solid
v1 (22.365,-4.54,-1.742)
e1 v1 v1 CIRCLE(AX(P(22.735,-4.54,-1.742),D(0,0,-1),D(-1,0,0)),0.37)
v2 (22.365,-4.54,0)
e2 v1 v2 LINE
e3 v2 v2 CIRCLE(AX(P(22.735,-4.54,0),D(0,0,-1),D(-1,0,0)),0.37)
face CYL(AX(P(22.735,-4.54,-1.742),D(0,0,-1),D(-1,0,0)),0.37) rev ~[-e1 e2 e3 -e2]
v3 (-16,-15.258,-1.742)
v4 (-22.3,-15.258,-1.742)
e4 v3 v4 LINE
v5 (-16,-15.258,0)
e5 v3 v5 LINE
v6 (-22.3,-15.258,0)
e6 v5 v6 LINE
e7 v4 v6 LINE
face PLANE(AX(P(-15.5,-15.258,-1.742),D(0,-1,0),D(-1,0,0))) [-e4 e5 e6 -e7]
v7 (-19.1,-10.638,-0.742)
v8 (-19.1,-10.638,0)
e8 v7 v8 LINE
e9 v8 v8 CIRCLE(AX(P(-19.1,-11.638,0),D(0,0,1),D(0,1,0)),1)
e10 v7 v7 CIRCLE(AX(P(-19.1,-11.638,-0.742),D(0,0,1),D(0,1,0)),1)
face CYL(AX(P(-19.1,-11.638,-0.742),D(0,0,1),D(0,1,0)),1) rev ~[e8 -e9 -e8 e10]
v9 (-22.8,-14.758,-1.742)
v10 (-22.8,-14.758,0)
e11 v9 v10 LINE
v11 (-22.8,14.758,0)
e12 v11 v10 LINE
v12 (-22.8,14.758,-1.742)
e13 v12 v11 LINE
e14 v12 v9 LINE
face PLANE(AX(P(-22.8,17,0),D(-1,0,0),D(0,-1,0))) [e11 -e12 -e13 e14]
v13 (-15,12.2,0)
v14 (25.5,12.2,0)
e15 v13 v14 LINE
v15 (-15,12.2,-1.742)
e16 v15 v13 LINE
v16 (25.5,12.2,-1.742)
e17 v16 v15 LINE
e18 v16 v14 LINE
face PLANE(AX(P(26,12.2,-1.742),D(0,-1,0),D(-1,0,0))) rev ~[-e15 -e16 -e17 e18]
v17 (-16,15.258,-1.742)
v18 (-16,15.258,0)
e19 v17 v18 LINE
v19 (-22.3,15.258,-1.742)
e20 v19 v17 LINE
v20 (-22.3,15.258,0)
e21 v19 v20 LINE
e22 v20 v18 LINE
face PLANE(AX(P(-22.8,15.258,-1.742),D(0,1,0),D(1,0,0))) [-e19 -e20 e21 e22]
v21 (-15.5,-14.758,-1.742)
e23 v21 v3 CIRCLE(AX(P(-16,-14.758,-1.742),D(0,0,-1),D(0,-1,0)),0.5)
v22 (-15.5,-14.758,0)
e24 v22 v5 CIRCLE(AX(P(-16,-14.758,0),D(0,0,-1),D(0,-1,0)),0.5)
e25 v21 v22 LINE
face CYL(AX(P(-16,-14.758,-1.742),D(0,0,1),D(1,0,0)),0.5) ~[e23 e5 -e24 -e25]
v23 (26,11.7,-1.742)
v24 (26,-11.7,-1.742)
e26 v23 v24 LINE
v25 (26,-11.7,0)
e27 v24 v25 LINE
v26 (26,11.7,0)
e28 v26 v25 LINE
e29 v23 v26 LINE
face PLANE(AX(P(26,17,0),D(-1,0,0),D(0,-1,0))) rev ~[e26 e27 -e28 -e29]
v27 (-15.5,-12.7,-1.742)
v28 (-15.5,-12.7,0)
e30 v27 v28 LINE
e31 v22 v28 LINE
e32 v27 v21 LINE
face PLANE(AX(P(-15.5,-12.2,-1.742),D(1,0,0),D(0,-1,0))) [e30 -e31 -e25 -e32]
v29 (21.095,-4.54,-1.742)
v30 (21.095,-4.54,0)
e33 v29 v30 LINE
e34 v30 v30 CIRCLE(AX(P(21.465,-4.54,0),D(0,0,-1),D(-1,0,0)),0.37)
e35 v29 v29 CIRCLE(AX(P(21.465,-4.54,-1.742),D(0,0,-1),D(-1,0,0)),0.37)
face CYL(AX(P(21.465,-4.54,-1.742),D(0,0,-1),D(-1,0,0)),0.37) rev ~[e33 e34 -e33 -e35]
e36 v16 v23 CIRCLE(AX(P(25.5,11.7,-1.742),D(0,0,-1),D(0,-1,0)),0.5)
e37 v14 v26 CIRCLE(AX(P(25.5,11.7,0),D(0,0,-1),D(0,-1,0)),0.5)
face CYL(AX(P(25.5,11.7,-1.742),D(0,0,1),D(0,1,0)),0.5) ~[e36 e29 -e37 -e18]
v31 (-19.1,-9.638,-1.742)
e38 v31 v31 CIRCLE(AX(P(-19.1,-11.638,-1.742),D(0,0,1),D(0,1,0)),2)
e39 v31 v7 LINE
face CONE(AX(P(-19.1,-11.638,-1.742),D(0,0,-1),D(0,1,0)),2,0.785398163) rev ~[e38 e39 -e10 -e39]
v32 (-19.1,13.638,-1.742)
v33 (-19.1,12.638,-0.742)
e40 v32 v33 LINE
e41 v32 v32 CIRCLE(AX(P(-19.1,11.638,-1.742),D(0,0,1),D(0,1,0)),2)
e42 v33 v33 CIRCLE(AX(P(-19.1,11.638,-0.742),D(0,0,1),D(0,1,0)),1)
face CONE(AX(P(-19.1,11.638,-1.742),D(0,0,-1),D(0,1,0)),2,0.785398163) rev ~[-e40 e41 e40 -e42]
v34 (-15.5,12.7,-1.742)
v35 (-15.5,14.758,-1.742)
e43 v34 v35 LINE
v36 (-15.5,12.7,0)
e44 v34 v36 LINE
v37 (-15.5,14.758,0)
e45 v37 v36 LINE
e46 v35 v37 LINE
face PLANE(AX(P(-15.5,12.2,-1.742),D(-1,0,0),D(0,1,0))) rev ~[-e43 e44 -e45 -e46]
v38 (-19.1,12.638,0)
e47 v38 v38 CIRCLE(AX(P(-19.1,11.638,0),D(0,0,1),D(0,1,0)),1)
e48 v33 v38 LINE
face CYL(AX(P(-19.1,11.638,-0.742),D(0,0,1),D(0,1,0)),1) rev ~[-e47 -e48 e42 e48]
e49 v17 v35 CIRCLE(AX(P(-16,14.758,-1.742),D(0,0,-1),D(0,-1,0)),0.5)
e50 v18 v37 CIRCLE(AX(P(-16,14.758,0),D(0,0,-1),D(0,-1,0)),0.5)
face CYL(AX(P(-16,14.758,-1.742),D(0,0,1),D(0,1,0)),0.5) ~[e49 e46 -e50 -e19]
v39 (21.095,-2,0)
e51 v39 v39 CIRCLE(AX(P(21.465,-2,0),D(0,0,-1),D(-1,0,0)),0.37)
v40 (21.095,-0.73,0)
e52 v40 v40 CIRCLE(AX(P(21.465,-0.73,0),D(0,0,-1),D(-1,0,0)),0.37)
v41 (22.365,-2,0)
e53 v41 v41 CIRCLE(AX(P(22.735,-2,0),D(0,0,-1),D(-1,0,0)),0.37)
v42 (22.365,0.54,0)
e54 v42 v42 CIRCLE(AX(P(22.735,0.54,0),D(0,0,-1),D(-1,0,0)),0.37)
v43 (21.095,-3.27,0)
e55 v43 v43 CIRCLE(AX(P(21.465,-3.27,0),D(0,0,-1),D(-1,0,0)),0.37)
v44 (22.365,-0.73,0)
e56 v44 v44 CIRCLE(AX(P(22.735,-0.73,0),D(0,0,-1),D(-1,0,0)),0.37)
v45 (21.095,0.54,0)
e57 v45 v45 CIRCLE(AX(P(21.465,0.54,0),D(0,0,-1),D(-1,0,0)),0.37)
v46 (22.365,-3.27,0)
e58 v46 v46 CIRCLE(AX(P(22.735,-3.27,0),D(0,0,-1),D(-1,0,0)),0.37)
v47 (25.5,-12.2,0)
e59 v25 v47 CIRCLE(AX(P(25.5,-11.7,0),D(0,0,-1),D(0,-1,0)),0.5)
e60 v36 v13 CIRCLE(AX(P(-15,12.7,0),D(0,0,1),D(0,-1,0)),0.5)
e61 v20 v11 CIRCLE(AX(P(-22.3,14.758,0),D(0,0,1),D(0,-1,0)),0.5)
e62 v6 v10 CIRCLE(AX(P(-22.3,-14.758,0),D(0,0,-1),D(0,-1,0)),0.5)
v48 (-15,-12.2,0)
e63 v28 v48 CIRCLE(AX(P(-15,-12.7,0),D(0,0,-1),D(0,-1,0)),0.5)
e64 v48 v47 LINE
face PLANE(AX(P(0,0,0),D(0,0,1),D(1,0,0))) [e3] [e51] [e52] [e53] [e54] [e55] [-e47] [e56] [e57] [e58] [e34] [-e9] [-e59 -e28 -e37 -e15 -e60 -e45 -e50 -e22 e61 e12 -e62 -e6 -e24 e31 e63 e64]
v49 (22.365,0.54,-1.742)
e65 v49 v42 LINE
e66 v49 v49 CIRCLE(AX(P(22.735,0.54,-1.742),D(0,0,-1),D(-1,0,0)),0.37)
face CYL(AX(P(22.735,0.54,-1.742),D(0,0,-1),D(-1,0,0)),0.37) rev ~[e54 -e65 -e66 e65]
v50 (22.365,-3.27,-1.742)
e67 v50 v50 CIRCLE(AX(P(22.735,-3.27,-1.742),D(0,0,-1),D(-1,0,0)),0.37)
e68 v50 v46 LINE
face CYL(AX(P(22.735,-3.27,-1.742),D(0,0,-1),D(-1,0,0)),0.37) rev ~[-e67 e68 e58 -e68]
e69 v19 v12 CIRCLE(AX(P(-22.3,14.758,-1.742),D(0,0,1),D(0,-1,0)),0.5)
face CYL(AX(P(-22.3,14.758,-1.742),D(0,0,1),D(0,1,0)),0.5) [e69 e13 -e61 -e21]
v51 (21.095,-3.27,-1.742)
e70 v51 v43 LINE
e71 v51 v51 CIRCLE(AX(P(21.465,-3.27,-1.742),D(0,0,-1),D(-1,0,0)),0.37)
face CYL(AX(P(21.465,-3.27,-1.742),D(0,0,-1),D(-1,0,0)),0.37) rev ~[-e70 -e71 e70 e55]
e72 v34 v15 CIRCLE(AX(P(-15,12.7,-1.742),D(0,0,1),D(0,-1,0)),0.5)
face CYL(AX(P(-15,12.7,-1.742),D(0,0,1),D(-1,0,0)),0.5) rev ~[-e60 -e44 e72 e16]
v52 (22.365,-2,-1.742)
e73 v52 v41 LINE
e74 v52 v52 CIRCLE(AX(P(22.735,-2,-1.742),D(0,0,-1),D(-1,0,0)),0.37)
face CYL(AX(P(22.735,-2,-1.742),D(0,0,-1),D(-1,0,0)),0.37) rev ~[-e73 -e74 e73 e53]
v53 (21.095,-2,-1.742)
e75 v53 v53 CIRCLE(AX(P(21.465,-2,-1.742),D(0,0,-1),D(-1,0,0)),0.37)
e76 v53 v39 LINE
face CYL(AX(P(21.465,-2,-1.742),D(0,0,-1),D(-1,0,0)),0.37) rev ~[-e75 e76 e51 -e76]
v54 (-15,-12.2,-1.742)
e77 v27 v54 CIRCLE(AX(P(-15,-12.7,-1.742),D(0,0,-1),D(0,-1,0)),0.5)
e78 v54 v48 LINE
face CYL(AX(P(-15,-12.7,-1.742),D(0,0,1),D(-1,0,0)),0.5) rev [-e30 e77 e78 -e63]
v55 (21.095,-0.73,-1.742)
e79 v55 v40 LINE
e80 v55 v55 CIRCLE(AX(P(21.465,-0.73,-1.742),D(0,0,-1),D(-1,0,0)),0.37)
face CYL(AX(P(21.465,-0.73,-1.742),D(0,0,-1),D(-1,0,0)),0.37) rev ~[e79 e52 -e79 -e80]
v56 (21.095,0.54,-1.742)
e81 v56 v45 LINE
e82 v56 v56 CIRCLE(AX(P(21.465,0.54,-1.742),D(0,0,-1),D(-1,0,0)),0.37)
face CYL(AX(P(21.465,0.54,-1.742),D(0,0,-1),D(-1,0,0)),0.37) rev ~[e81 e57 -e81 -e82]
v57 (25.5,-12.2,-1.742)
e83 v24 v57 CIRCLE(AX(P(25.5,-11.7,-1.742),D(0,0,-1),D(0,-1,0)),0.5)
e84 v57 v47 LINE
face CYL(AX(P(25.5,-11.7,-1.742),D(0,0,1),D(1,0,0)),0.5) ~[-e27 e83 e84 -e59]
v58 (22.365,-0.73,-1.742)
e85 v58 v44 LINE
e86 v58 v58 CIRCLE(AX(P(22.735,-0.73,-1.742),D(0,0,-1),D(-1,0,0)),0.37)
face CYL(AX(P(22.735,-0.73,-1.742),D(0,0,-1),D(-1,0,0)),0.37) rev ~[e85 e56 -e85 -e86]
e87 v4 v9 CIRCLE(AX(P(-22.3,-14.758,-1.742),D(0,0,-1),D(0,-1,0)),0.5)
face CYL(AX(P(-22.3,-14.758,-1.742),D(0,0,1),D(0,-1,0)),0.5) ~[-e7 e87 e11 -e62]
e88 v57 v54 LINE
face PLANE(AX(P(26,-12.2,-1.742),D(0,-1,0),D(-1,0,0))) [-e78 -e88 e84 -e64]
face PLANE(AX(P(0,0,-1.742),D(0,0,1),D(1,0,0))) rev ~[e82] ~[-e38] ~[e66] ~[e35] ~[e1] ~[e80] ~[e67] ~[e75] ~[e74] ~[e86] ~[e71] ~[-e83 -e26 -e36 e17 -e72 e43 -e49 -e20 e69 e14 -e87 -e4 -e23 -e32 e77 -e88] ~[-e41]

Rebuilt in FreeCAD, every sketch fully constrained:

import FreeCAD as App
import Part
import Sketcher

V = App.Vector
Q = App.Units.Quantity


def edges_at(feature, points):
    """Names of the edges that pass closest to the given points."""
    edges = feature.Shape.Edges
    near = lambda p: min(range(len(edges)), key=lambda i: edges[i].distToShape(Part.Vertex(*p))[0])
    return sorted({f"Edge{near(p) + 1}" for p in points})

doc = App.newDocument("Part")
body = doc.addObject("PartDesign::Body", "Body")

# Sketch on XY plane
sketch1 = doc.addObject("Sketcher::SketchObject", "Sketch")
body.addObject(sketch1)
sketch1.AttachmentSupport = (doc.XY_Plane, [""])
sketch1.MapMode = "FlatFace"
sketch1.addGeometry([
    Part.LineSegment(V(26, 17, 0), V(-26, 17, 0)),
    Part.LineSegment(V(-26, 17, 0), V(-26, -17, 0)),
    Part.LineSegment(V(-26, -17, 0), V(26, -17, 0)),
    Part.LineSegment(V(26, -17, 0), V(26, 17, 0)),
], False)
sketch1.addConstraint([
    Sketcher.Constraint("Coincident", 0, 2, 1, 1),
    Sketcher.Constraint("Coincident", 1, 2, 2, 1),
    Sketcher.Constraint("Coincident", 2, 2, 3, 1),
    Sketcher.Constraint("Coincident", 3, 2, 0, 1),
    Sketcher.Constraint("Horizontal", 0),
    Sketcher.Constraint("Vertical", 1),
    Sketcher.Constraint("Horizontal", 2),
    Sketcher.Constraint("Vertical", 3),
    Sketcher.Constraint("Symmetric", 0, 2, 2, 2, -1, 1),
    Sketcher.Constraint("DistanceX", 0, 2, 0, 1, Q("52 mm")),
    Sketcher.Constraint("DistanceY", 1, 2, 1, 1, Q("34 mm")),
])
pad1 = doc.addObject("PartDesign::Pad", "Pad")
body.addObject(pad1)
pad1.Profile = sketch1
pad1.Length = 1.742
pad1.Reversed = True
doc.recompute()

fillet = doc.addObject("PartDesign::Fillet", "Fillet")
body.addObject(fillet)
fillet.Base = (pad1, edges_at(pad1, [
    (26, 17, -0.871),
    (-26, 17, -0.871),
    (-26, -17, -0.871),
    (26, -17, -0.871),
]))
fillet.Radius = 0.5

# Sketch on XY plane
sketch2 = doc.addObject("Sketcher::SketchObject", "Sketch001")
body.addObject(sketch2)
sketch2.AttachmentSupport = (doc.XY_Plane, [""])
sketch2.MapMode = "FlatFace"
sketch2.AttachmentOffset = App.Placement(V(0, 0, -1.742), App.Rotation())
sketch2.addGeometry([
    Part.LineSegment(V(-15.5, -12.2, 0), V(26, -12.2, 0)),  # 0
    Part.LineSegment(V(26, -12.2, 0), V(26, -17, 0)),  # 1
    Part.LineSegment(V(26, -17, 0), V(-15.5, -17, 0)),  # 2
    Part.LineSegment(V(-15.5, -17, 0), V(-15.5, -12.2, 0)),  # 3
    Part.LineSegment(V(-15.5, 17, 0), V(26, 17, 0)),  # 4
    Part.LineSegment(V(26, 17, 0), V(26, 12.2, 0)),  # 5
    Part.LineSegment(V(26, 12.2, 0), V(-15.5, 12.2, 0)),  # 6
    Part.LineSegment(V(-15.5, 12.2, 0), V(-15.5, 17, 0)),  # 7
], False)
sketch2.addConstraint([
    Sketcher.Constraint("Coincident", 0, 2, 1, 1),
    Sketcher.Constraint("Coincident", 1, 2, 2, 1),
    Sketcher.Constraint("Coincident", 2, 2, 3, 1),
    Sketcher.Constraint("Coincident", 3, 2, 0, 1),
    Sketcher.Constraint("Coincident", 4, 2, 5, 1),
    Sketcher.Constraint("Coincident", 5, 2, 6, 1),
    Sketcher.Constraint("Coincident", 6, 2, 7, 1),
    Sketcher.Constraint("Coincident", 7, 2, 4, 1),
    Sketcher.Constraint("Horizontal", 0),
    Sketcher.Constraint("Vertical", 1),
    Sketcher.Constraint("Horizontal", 2),
    Sketcher.Constraint("Vertical", 3),
    Sketcher.Constraint("Horizontal", 4),
    Sketcher.Constraint("Vertical", 5),
    Sketcher.Constraint("Horizontal", 6),
    Sketcher.Constraint("Vertical", 7),
    Sketcher.Constraint("Symmetric", 1, 2, 4, 2, -1),
    Sketcher.Constraint("Symmetric", 3, 2, 6, 2, -1),
    Sketcher.Constraint("DistanceX", 0, 1, 0, 2, Q("41.5 mm")),
    Sketcher.Constraint("DistanceY", 1, 2, 1, 1, Q("4.8 mm")),
    Sketcher.Constraint("DistanceX", -1, 1, 0, 2, Q("26 mm")),
    Sketcher.Constraint("DistanceY", 1, 2, -1, 1, Q("17 mm")),
])
pocket1 = doc.addObject("PartDesign::Pocket", "Pocket")
body.addObject(pocket1)
pocket1.Profile = sketch2
pocket1.Type = "ThroughAll"
pocket1.Reversed = True

# Sketch on XY plane
sketch3 = doc.addObject("Sketcher::SketchObject", "Sketch002")
body.addObject(sketch3)
sketch3.AttachmentSupport = (doc.XY_Plane, [""])
sketch3.MapMode = "FlatFace"
sketch3.addGeometry([
    Part.LineSegment(V(-22.8, 17, 0), V(-26, 17, 0)),
    Part.LineSegment(V(-26, 17, 0), V(-26, -17, 0)),
    Part.LineSegment(V(-26, -17, 0), V(-22.8, -17, 0)),
    Part.LineSegment(V(-22.8, -17, 0), V(-22.8, 17, 0)),
], False)
sketch3.addConstraint([
    Sketcher.Constraint("Coincident", 0, 2, 1, 1),
    Sketcher.Constraint("Coincident", 1, 2, 2, 1),
    Sketcher.Constraint("Coincident", 2, 2, 3, 1),
    Sketcher.Constraint("Coincident", 3, 2, 0, 1),
    Sketcher.Constraint("Horizontal", 0),
    Sketcher.Constraint("Vertical", 1),
    Sketcher.Constraint("Horizontal", 2),
    Sketcher.Constraint("Vertical", 3),
    Sketcher.Constraint("DistanceX", 0, 2, 0, 1, Q("3.2 mm")),
    Sketcher.Constraint("DistanceY", 1, 2, 1, 1, Q("34 mm")),
    Sketcher.Constraint("DistanceX", 0, 2, -1, 1, Q("26 mm")),
    Sketcher.Constraint("DistanceY", -1, 1, 0, 2, Q("17 mm")),
])
pocket2 = doc.addObject("PartDesign::Pocket", "Pocket001")
body.addObject(pocket2)
pocket2.Profile = sketch3
pocket2.Length = 1.742

# Sketch on XY plane
sketch4 = doc.addObject("Sketcher::SketchObject", "Sketch003")
body.addObject(sketch4)
sketch4.AttachmentSupport = (doc.XY_Plane, [""])
sketch4.MapMode = "FlatFace"
sketch4.AttachmentOffset = App.Placement(V(0, 0, -1.742), App.Rotation())
sketch4.addGeometry([
    Part.Circle(V(-19.1, 11.6, 0), V(0, 0, 1), 1),
    Part.Circle(V(-19.1, -11.6, 0), V(0, 0, 1), 1),
], False)
sketch4.addConstraint([
    Sketcher.Constraint("Equal", 0, 1),
    Sketcher.Constraint("Symmetric", 0, 3, 1, 3, -1),
    Sketcher.Constraint("Diameter", 0, Q("2 mm")),
    Sketcher.Constraint("DistanceX", 0, 3, -1, 1, Q("19.1 mm")),
    Sketcher.Constraint("DistanceY", -1, 1, 0, 3, Q("11.638 mm")),
])
doc.recompute()
hole = doc.addObject("PartDesign::Hole", "Hole")
body.addObject(hole)
hole.Profile = sketch4
hole.ThreadType = "None"
hole.Diameter = 2
hole.DepthType = "ThroughAll"
hole.HoleCutType = "Countersink"
hole.HoleCutDiameter = 4
hole.HoleCutCountersinkAngle = 90
hole.Reversed = True
doc.recompute()

fillet2 = doc.addObject("PartDesign::Fillet", "Fillet001")
body.addObject(fillet2)
fillet2.Base = (hole, edges_at(hole, [
    (-15.5, 17, -0.871),
    (-22.8, 17, -0.871),
    (-15.5, 12.2, -0.871),
    (26, 12.2, -0.871),
    (26, -12.2, -0.871),
    (-15.5, -12.2, -0.871),
    (-15.5, -17, -0.871),
    (-22.8, -17, -0.871),
]))
fillet2.Radius = 0.5

# Sketch on XY plane
sketch5 = doc.addObject("Sketcher::SketchObject", "Sketch004")
body.addObject(sketch5)
sketch5.AttachmentSupport = (doc.XY_Plane, [""])
sketch5.MapMode = "FlatFace"
sketch5.AttachmentOffset = App.Placement(V(0, 0, -1.742), App.Rotation())
sketch5.addGeometry([
    Part.Circle(V(22.73, 0.54, 0), V(0, 0, 1), 0.37),  # 0
    Part.Circle(V(21.46, 0.54, 0), V(0, 0, 1), 0.37),  # 1
    Part.Circle(V(22.73, -0.73, 0), V(0, 0, 1), 0.37),  # 2
    Part.Circle(V(21.46, -0.73, 0), V(0, 0, 1), 0.37),  # 3
    Part.Circle(V(22.73, -2, 0), V(0, 0, 1), 0.37),  # 4
    Part.Circle(V(21.46, -2, 0), V(0, 0, 1), 0.37),  # 5
    Part.Circle(V(22.73, -3.27, 0), V(0, 0, 1), 0.37),  # 6
    Part.Circle(V(21.46, -3.27, 0), V(0, 0, 1), 0.37),  # 7
    Part.Circle(V(22.73, -4.54, 0), V(0, 0, 1), 0.37),  # 8
    Part.Circle(V(21.46, -4.54, 0), V(0, 0, 1), 0.37),  # 9
], False)
sketch5.addConstraint([
    Sketcher.Constraint("Equal", 0, 1),
    Sketcher.Constraint("Equal", 1, 2),
    Sketcher.Constraint("Equal", 2, 3),
    Sketcher.Constraint("Equal", 3, 4),
    Sketcher.Constraint("Equal", 4, 5),
    Sketcher.Constraint("Equal", 5, 6),
    Sketcher.Constraint("Equal", 6, 7),
    Sketcher.Constraint("Equal", 7, 8),
    Sketcher.Constraint("Equal", 8, 9),
    Sketcher.Constraint("Horizontal", 0, 3, 1, 3),
    Sketcher.Constraint("Horizontal", 2, 3, 3, 3),
    Sketcher.Constraint("Horizontal", 4, 3, 5, 3),
    Sketcher.Constraint("Horizontal", 6, 3, 7, 3),
    Sketcher.Constraint("Horizontal", 8, 3, 9, 3),
    Sketcher.Constraint("Vertical", 0, 3, 2, 3),
    Sketcher.Constraint("Vertical", 1, 3, 3, 3),
    Sketcher.Constraint("Vertical", 2, 3, 4, 3),
    Sketcher.Constraint("Vertical", 3, 3, 5, 3),
    Sketcher.Constraint("Vertical", 4, 3, 6, 3),
    Sketcher.Constraint("Vertical", 5, 3, 7, 3),
    Sketcher.Constraint("Vertical", 6, 3, 8, 3),
    Sketcher.Constraint("Vertical", 7, 3, 9, 3),
    Sketcher.Constraint("Diameter", 0, Q("0.74 mm")),
    Sketcher.Constraint("DistanceX", 1, 3, 0, 3, Q("1.27 mm")),
    Sketcher.Constraint("DistanceY", 2, 3, 0, 3, Q("1.27 mm")),
    Sketcher.Constraint("DistanceY", 4, 3, 2, 3, Q("1.27 mm")),
    Sketcher.Constraint("DistanceY", 6, 3, 4, 3, Q("1.27 mm")),
    Sketcher.Constraint("DistanceY", 8, 3, 6, 3, Q("1.27 mm")),
    Sketcher.Constraint("DistanceY", 4, 3, -1, 1, Q("2 mm")),
    Sketcher.Constraint("DistanceX", -1, 1, 0, 3, Q("22.735 mm")),
])
pocket3 = doc.addObject("PartDesign::Pocket", "Pocket002")
body.addObject(pocket3)
pocket3.Profile = sketch5
pocket3.Length = 1.742
pocket3.Reversed = True

# Sketch on XY plane
sketch6 = doc.addObject("Sketcher::SketchObject", "Sketch005")
body.addObject(sketch6)
sketch6.AttachmentSupport = (doc.XY_Plane, [""])
sketch6.MapMode = "FlatFace"
sketch6.AttachmentOffset = App.Placement(V(0, 0, -1.742), App.Rotation())
sketch6.addGeometry([
    Part.LineSegment(V(-15.5, -17, 0), V(-22.8, -17, 0)),  # 0
    Part.LineSegment(V(-22.8, -17, 0), V(-22.8, -15.3, 0)),  # 1
    Part.LineSegment(V(-22.8, -15.3, 0), V(-15.5, -15.3, 0)),  # 2
    Part.LineSegment(V(-15.5, -15.3, 0), V(-15.5, -17, 0)),  # 3
    Part.LineSegment(V(-15.5, 15.3, 0), V(-22.8, 15.3, 0)),  # 4
    Part.LineSegment(V(-22.8, 15.3, 0), V(-22.8, 17, 0)),  # 5
    Part.LineSegment(V(-22.8, 17, 0), V(-15.5, 17, 0)),  # 6
    Part.LineSegment(V(-15.5, 17, 0), V(-15.5, 15.3, 0)),  # 7
], False)
sketch6.addConstraint([
    Sketcher.Constraint("Coincident", 0, 2, 1, 1),
    Sketcher.Constraint("Coincident", 1, 2, 2, 1),
    Sketcher.Constraint("Coincident", 2, 2, 3, 1),
    Sketcher.Constraint("Coincident", 3, 2, 0, 1),
    Sketcher.Constraint("Coincident", 4, 2, 5, 1),
    Sketcher.Constraint("Coincident", 5, 2, 6, 1),
    Sketcher.Constraint("Coincident", 6, 2, 7, 1),
    Sketcher.Constraint("Coincident", 7, 2, 4, 1),
    Sketcher.Constraint("Horizontal", 0),
    Sketcher.Constraint("Vertical", 1),
    Sketcher.Constraint("Horizontal", 2),
    Sketcher.Constraint("Vertical", 3),
    Sketcher.Constraint("Horizontal", 4),
    Sketcher.Constraint("Vertical", 5),
    Sketcher.Constraint("Horizontal", 6),
    Sketcher.Constraint("Vertical", 7),
    Sketcher.Constraint("Symmetric", 1, 2, 4, 2, -1),
    Sketcher.Constraint("Symmetric", 3, 2, 6, 2, -1),
    Sketcher.Constraint("DistanceY", 1, 1, 1, 2, Q("1.742 mm")),
    Sketcher.Constraint("DistanceX", 0, 2, 0, 1, Q("7.3 mm")),
    Sketcher.Constraint("DistanceY", 0, 2, -1, 1, Q("17 mm")),
    Sketcher.Constraint("DistanceX", 0, 2, -1, 1, Q("22.8 mm")),
])
pocket4 = doc.addObject("PartDesign::Pocket", "Pocket003")
body.addObject(pocket4)
pocket4.Profile = sketch6
pocket4.Length = 1.742
pocket4.Reversed = True
doc.recompute()

fillet3 = doc.addObject("PartDesign::Fillet", "Fillet002")
body.addObject(fillet3)
fillet3.Base = (pocket4, edges_at(pocket4, [
    (-22.8, -15.258, -0.871),
    (-15.5, -15.258, -0.871),
    (-22.8, 15.258, -0.871),
    (-15.5, 15.258, -0.871),
]))
fillet3.Radius = 0.5

doc.recompute()
